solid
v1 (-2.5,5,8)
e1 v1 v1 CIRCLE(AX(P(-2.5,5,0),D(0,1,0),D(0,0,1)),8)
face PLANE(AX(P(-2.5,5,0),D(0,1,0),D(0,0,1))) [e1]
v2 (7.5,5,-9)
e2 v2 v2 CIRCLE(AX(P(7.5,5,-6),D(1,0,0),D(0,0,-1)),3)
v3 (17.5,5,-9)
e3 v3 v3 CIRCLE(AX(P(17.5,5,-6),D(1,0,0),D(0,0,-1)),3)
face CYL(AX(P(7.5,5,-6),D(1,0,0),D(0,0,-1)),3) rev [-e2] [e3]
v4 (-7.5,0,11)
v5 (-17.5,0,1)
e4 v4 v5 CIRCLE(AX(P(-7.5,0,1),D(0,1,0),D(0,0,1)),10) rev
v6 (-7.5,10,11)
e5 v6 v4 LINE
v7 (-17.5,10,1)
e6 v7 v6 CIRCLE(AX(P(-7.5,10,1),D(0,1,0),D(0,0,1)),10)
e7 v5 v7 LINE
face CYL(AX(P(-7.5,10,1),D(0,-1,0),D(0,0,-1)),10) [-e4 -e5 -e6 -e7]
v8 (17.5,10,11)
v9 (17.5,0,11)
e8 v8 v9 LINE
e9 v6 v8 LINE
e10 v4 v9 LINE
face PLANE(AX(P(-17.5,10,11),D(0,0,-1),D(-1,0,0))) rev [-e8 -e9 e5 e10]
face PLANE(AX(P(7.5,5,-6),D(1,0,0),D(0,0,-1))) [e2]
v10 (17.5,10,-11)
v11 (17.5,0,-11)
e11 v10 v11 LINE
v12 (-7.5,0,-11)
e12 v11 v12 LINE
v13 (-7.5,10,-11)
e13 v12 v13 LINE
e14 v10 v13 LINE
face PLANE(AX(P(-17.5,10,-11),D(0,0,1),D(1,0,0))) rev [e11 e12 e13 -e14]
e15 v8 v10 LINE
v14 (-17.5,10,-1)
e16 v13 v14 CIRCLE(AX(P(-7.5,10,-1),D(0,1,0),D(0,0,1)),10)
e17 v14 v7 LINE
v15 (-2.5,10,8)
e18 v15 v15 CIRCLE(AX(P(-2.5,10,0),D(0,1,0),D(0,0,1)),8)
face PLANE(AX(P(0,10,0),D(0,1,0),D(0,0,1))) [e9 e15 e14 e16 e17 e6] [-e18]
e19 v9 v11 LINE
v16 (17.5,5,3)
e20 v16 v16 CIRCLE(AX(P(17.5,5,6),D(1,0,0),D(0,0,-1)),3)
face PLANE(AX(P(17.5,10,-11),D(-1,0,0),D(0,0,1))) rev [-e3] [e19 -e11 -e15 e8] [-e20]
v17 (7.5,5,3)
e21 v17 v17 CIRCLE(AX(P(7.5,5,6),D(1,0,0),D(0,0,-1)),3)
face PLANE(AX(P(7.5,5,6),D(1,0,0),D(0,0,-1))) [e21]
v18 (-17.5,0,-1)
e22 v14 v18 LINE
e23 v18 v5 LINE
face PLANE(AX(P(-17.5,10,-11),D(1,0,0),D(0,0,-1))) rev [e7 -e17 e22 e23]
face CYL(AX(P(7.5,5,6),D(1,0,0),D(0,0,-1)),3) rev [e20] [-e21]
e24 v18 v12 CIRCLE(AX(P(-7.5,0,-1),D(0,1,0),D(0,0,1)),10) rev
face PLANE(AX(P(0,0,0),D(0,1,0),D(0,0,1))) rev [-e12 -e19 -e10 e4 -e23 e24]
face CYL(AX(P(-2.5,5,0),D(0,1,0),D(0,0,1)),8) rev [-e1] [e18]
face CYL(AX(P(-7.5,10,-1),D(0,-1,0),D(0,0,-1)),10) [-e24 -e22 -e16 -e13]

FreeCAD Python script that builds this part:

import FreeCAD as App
import Part
import Sketcher

V = App.Vector
Q = App.Units.Quantity


def edges_at(feature, points):
    """Names of the edges that pass closest to the given points."""
    edges = feature.Shape.Edges
    near = lambda p: min(range(len(edges)), key=lambda i: edges[i].distToShape(Part.Vertex(*p))[0])
    return sorted({f"Edge{near(p) + 1}" for p in points})


def add_polygon(sketch, points):
    """Adds a closed chain of lines whose ends are joined by coincident constraints."""
    first, n = sketch.GeometryCount, len(points)
    for a, b in zip(points, points[1:] + points[:1]):
        sketch.addGeometry(Part.LineSegment(App.Vector(*a, 0), App.Vector(*b, 0)), False)
    for i in range(n):
        sketch.addConstraint(Sketcher.Constraint("Coincident", first + i, 2, first + (i + 1) % n, 1))

doc = App.newDocument("Part")
body = doc.addObject("PartDesign::Body", "Body")

sketch1 = doc.addObject("Sketcher::SketchObject", "Sketch")
body.addObject(sketch1)
sketch1.AttachmentSupport = (doc.XZ_Plane, [""])
sketch1.MapMode = "FlatFace"
add_polygon(sketch1, [(-18, -11), (-18, 11), (18, 11), (18, -11)])
sketch1.addConstraint(Sketcher.Constraint("Vertical", 0))
sketch1.addConstraint(Sketcher.Constraint("Horizontal", 1))
sketch1.addConstraint(Sketcher.Constraint("Vertical", 2))
sketch1.addConstraint(Sketcher.Constraint("Horizontal", 3))
sketch1.addConstraint(Sketcher.Constraint("Symmetric", 0, 2, 2, 2, -1, 1))
sketch1.addConstraint(Sketcher.Constraint("DistanceX", 1, 1, 1, 2, Q("35 mm")))
sketch1.addConstraint(Sketcher.Constraint("DistanceY", 0, 1, 0, 2, Q("22 mm")))
pad1 = doc.addObject("PartDesign::Pad", "Pad")
body.addObject(pad1)
pad1.Profile = sketch1
pad1.Length = 10
pad1.Reversed = True

sketch2 = doc.addObject("Sketcher::SketchObject", "Sketch001")
body.addObject(sketch2)
sketch2.AttachmentSupport = (doc.YZ_Plane, [""])
sketch2.MapMode = "FlatFace"
sketch2.AttachmentOffset = App.Placement(V(0, 0, 17.5), App.Rotation())
sketch2.addGeometry(Part.Circle(V(5, -6, 0), V(0, 0, 1), 3), False)
sketch2.addGeometry(Part.Circle(V(5, 6, 0), V(0, 0, 1), 3), False)
sketch2.addConstraint(Sketcher.Constraint("Equal", 0, 1))
sketch2.addConstraint(Sketcher.Constraint("Symmetric", 0, 3, 1, 3, -1))
sketch2.addConstraint(Sketcher.Constraint("Diameter", 0, Q("6 mm")))
sketch2.addConstraint(Sketcher.Constraint("DistanceX", -1, 1, 0, 3, Q("5 mm")))
sketch2.addConstraint(Sketcher.Constraint("DistanceY", 0, 3, -1, 1, Q("6 mm")))
pocket1 = doc.addObject("PartDesign::Pocket", "Pocket")
body.addObject(pocket1)
pocket1.Profile = sketch2
pocket1.Length = 10

sketch3 = doc.addObject("Sketcher::SketchObject", "Sketch002")
body.addObject(sketch3)
sketch3.AttachmentSupport = (doc.XZ_Plane, [""])
sketch3.MapMode = "FlatFace"
sketch3.AttachmentOffset = App.Placement(V(0, 0, -10), App.Rotation())
sketch3.addGeometry(Part.Circle(V(-2, 0, 0), V(0, 0, 1), 8), False)
sketch3.addConstraint(Sketcher.Constraint("PointOnObject", 0, 3, -1))
sketch3.addConstraint(Sketcher.Constraint("Diameter", 0, Q("16 mm")))
sketch3.addConstraint(Sketcher.Constraint("DistanceX", 0, 3, -1, 1, Q("2.5 mm")))
pocket2 = doc.addObject("PartDesign::Pocket", "Pocket001")
body.addObject(pocket2)
pocket2.Profile = sketch3
pocket2.Length = 5
pocket2.Reversed = True
doc.recompute()

fillet = doc.addObject("PartDesign::Fillet", "Fillet")
body.addObject(fillet)
fillet.Base = (pocket2, edges_at(pocket2, [(-17.5, 5, 11), (-17.5, 5, -11)]))
fillet.Radius = 10

doc.recompute()
